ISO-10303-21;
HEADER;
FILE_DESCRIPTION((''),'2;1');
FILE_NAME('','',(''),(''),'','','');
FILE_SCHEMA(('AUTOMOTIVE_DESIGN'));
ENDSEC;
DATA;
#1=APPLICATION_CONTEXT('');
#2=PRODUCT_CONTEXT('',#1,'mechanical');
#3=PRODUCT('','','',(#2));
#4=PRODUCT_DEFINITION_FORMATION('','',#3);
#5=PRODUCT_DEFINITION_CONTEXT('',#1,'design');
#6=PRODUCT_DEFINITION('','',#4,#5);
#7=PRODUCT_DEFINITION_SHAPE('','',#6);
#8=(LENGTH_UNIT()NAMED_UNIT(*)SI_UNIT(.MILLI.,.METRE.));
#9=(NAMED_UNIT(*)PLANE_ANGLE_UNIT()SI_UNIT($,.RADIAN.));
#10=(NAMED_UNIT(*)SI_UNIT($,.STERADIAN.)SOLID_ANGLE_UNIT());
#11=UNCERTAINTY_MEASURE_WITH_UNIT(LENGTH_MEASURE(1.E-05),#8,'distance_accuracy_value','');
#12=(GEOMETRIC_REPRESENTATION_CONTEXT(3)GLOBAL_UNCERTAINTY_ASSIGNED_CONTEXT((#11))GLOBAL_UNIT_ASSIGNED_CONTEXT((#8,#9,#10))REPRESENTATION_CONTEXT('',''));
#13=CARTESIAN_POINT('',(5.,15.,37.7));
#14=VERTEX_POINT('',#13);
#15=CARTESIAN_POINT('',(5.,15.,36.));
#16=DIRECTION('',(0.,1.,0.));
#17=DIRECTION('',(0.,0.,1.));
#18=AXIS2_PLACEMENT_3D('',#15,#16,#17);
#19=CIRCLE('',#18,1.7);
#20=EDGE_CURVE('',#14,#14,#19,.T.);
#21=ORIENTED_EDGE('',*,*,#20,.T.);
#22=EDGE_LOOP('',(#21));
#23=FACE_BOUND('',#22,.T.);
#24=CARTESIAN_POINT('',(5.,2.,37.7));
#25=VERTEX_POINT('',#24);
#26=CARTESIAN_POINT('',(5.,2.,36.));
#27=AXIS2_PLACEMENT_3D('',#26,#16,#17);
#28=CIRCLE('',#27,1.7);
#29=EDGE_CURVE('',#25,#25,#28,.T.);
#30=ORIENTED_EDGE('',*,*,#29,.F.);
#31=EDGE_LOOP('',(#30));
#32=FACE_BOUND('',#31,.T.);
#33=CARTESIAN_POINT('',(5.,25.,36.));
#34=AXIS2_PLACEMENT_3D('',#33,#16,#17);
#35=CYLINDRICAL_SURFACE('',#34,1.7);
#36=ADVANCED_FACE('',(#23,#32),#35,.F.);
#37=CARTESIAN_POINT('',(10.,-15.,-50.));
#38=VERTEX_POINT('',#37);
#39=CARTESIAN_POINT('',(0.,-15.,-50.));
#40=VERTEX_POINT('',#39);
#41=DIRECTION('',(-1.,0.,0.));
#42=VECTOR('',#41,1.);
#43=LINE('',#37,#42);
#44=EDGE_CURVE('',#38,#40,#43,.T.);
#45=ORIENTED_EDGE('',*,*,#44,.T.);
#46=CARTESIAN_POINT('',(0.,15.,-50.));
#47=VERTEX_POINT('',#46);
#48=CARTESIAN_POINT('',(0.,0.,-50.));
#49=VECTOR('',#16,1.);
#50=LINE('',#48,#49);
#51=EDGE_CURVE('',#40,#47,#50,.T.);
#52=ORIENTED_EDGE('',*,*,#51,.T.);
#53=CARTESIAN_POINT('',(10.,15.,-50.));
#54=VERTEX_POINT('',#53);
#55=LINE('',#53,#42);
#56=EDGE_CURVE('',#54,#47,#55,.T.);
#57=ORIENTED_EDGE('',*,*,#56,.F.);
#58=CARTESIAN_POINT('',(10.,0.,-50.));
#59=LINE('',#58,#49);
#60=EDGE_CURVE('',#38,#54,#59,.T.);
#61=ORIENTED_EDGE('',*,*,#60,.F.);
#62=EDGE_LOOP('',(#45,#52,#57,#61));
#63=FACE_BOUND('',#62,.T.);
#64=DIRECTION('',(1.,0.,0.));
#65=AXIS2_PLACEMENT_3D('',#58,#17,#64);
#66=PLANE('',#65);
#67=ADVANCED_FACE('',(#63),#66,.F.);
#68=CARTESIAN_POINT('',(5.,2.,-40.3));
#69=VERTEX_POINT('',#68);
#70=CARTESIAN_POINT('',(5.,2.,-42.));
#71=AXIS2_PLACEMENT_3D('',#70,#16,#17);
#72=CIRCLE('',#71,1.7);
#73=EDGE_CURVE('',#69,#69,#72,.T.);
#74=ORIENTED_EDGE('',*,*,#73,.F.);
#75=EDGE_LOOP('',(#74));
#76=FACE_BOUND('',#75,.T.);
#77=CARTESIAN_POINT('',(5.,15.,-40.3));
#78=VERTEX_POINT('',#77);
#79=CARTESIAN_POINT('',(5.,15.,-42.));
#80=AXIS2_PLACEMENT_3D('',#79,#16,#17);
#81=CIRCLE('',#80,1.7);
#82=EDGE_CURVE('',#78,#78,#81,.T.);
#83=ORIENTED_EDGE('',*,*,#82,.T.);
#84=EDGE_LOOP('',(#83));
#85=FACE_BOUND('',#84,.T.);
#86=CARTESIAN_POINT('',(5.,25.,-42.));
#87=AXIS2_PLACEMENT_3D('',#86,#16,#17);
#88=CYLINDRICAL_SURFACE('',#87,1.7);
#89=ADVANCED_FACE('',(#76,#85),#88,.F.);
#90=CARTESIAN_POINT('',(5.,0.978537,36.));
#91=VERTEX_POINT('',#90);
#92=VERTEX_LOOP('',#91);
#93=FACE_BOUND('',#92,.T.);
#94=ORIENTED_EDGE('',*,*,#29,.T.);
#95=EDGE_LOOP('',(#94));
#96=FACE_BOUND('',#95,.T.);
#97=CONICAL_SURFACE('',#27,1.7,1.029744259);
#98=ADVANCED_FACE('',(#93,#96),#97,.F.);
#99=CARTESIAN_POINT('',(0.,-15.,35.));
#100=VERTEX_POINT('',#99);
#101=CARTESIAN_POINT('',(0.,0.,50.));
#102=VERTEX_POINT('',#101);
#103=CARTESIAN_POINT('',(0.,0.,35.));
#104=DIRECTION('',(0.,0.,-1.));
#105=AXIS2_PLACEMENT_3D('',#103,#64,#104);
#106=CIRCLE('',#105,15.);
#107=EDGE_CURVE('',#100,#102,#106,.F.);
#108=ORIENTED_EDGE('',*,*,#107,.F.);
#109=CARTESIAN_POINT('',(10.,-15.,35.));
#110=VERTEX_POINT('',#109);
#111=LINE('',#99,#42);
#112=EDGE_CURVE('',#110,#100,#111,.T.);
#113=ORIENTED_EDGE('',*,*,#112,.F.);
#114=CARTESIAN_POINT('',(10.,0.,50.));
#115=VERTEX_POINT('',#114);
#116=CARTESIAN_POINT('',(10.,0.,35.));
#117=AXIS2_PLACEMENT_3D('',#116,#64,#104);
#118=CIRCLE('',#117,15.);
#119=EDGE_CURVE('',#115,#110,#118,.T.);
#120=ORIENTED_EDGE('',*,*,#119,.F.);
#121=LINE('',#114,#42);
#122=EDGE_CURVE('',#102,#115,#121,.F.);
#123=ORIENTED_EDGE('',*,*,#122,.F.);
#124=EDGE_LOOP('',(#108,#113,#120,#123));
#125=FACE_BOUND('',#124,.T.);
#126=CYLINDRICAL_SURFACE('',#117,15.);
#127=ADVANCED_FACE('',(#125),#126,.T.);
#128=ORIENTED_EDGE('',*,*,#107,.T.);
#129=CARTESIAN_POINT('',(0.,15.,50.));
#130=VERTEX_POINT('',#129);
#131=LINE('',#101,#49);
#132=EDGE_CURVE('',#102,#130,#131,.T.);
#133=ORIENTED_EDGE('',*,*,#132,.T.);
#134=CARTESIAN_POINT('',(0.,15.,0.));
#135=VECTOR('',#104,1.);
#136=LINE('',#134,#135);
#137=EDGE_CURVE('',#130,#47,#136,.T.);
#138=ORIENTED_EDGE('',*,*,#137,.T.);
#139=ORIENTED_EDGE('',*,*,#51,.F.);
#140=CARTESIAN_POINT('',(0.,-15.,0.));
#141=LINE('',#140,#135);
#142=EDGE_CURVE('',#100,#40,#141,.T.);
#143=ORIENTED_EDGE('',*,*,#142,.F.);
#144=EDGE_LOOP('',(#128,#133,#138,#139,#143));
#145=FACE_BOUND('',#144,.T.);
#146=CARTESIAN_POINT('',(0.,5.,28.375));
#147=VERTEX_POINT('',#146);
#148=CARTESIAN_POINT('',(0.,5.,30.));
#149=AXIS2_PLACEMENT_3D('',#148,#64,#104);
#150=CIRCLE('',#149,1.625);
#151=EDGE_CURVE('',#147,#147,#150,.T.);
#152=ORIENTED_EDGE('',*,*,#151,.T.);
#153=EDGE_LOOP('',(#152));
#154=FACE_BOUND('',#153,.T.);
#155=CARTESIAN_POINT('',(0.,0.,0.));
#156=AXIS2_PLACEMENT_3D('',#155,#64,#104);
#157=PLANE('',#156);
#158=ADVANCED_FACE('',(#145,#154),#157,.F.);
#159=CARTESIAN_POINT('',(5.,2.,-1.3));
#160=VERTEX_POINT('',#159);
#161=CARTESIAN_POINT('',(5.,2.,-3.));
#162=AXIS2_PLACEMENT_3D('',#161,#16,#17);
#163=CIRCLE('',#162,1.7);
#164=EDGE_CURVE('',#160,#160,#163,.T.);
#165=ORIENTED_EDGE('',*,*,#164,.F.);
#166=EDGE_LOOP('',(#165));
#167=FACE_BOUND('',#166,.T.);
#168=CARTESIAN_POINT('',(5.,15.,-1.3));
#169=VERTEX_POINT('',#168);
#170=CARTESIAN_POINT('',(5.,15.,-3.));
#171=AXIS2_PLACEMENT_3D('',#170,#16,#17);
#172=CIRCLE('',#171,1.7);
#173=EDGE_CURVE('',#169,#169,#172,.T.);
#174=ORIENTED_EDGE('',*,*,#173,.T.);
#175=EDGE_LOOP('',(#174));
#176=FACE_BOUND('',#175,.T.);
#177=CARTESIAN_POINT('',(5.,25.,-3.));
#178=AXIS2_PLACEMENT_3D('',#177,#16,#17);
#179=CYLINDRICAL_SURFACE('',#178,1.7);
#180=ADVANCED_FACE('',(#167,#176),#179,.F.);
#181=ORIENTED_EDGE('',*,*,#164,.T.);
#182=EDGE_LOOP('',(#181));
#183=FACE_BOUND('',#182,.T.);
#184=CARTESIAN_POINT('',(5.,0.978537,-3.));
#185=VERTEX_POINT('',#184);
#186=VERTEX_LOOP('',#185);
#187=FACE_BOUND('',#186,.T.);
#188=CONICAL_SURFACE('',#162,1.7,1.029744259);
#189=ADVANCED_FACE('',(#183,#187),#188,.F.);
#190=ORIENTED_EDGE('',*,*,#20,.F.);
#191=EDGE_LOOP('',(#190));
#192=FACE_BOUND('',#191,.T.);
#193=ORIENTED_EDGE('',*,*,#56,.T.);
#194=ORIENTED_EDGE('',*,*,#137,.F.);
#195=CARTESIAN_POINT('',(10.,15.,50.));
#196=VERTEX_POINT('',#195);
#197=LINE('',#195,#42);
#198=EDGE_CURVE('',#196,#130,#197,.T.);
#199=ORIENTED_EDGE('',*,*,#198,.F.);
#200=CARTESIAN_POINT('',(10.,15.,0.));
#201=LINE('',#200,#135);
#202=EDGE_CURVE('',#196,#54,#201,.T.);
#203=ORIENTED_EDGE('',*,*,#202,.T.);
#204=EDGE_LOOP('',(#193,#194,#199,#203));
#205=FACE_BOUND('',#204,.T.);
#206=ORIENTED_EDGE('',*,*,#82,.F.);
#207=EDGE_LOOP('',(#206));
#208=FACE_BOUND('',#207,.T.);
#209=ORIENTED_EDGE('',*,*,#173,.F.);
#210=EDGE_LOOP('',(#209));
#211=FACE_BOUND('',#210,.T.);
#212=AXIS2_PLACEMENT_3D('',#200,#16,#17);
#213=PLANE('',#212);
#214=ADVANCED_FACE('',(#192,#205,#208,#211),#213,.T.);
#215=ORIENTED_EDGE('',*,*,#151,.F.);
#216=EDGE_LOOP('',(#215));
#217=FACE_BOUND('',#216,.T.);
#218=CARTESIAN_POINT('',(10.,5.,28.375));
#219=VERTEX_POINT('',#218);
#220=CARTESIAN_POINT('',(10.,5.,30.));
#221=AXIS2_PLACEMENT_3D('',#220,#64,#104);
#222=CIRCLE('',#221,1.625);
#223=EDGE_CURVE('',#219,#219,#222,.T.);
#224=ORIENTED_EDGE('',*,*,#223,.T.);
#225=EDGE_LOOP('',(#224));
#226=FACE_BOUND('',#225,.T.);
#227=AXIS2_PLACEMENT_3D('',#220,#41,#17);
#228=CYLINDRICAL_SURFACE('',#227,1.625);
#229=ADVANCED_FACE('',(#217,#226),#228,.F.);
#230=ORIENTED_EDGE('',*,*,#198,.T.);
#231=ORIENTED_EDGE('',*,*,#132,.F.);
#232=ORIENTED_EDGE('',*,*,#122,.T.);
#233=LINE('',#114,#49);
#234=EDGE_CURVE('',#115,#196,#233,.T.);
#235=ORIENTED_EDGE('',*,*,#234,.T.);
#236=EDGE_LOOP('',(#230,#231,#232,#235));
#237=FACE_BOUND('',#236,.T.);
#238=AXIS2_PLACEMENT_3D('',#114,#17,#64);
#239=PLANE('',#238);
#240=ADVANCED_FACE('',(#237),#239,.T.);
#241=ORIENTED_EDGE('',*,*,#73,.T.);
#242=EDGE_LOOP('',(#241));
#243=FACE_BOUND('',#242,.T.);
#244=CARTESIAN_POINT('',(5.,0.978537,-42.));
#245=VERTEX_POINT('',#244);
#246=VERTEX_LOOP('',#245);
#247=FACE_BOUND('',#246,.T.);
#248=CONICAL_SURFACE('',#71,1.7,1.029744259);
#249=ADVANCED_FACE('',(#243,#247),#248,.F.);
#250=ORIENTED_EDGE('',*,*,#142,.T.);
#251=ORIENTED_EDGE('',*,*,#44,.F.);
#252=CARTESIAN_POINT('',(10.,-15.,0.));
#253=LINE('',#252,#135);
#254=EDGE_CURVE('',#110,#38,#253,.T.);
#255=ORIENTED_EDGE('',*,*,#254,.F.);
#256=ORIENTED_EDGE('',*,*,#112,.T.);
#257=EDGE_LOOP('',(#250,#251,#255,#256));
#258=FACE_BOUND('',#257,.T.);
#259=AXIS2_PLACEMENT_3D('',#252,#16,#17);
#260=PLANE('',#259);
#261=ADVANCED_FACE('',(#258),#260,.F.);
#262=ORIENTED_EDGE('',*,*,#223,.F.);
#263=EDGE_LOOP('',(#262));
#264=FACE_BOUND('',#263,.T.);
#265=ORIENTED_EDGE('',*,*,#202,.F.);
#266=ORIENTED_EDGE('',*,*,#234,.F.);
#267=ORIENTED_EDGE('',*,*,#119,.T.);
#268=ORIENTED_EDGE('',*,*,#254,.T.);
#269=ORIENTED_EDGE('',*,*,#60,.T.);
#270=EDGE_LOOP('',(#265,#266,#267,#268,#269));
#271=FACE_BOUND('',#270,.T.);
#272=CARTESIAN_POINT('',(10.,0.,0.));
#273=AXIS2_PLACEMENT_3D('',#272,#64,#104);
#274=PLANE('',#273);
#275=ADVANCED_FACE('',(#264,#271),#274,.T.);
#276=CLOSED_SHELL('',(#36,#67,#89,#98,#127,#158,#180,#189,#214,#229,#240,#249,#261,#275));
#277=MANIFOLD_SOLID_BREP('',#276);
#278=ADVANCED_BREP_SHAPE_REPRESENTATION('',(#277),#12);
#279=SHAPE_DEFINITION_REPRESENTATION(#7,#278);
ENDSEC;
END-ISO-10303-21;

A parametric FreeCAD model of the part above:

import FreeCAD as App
import Part
import Sketcher
Q = App.Units.Quantity


def edges_at(feature, points):
    """Names of the edges that pass closest to the given points."""
    edges = feature.Shape.Edges
    near = lambda p: min(range(len(edges)), key=lambda i: edges[i].distToShape(Part.Vertex(*p))[0])
    return sorted({f"Edge{near(p) + 1}" for p in points})


def add_polygon(sketch, points):
    """Adds a closed chain of lines whose ends are joined by coincident constraints."""
    first, n = sketch.GeometryCount, len(points)
    for a, b in zip(points, points[1:] + points[:1]):
        sketch.addGeometry(Part.LineSegment(App.Vector(*a, 0), App.Vector(*b, 0)), False)
    for i in range(n):
        sketch.addConstraint(Sketcher.Constraint("Coincident", first + i, 2, first + (i + 1) % n, 1))

doc = App.newDocument("Part")
body = doc.addObject("PartDesign::Body", "Body")

sketch1 = body.newObject("Sketcher::SketchObject", "Sketch")
sketch1.AttachmentSupport = (doc.getObject("YZ_Plane"), [""])
sketch1.MapMode = "FlatFace"
add_polygon(sketch1, [(15, 50), (-15, 50), (-15, -50), (15, -50)])
sketch1.addGeometry(Part.Circle(App.Vector(5, 30, 0), App.Vector(0, 0, 1), 1.6), False)
sketch1.addConstraint([
    Sketcher.Constraint("Horizontal", 0),
    Sketcher.Constraint("Vertical", 1),
    Sketcher.Constraint("Horizontal", 2),
    Sketcher.Constraint("Vertical", 3),
    Sketcher.Constraint("Symmetric", 0, 2, 2, 2, -1, 1),
    Sketcher.Constraint("Diameter", 4, Q("3.25 mm")),
    Sketcher.Constraint("DistanceX", 0, 2, 0, 1, Q("30 mm")),
    Sketcher.Constraint("DistanceY", 1, 2, 1, 1, Q("100 mm")),
    Sketcher.Constraint("DistanceX", -1, 1, 4, 3, Q("5 mm")),
    Sketcher.Constraint("DistanceY", -1, 1, 4, 3, Q("30 mm")),
])
pad1 = body.newObject("PartDesign::Pad", "Pad")
pad1.Profile = sketch1
pad1.Length = 10
doc.recompute()

fillet = body.newObject("PartDesign::Fillet", "Fillet")
fillet.Base = (pad1, edges_at(pad1, [(5, -15, 50)]))
fillet.Radius = 15

sketch2 = body.newObject("Sketcher::SketchObject", "Sketch001")
sketch2.AttachmentSupport = (doc.getObject("XZ_Plane"), [""])
sketch2.MapMode = "FlatFace"
sketch2.AttachmentOffset = App.Placement(App.Vector(0, 0, -25), App.Rotation())
sketch2.addGeometry([
    Part.Circle(App.Vector(5, -42, 0), App.Vector(0, 0, 1), 1.7),
    Part.Circle(App.Vector(5, 36, 0), App.Vector(0, 0, 1), 1.7),
    Part.Circle(App.Vector(-105, -42, 0), App.Vector(0, 0, 1), 1.7),
    Part.Circle(App.Vector(-105, 42, 0), App.Vector(0, 0, 1), 1.7),
    Part.Circle(App.Vector(-105, 0, 0), App.Vector(0, 0, 1), 1.7),
    Part.Circle(App.Vector(5, -3, 0), App.Vector(0, 0, 1), 1.7),
], False)
sketch2.addConstraint([
    Sketcher.Constraint("Equal", 0, 1),
    Sketcher.Constraint("Equal", 1, 2),
    Sketcher.Constraint("Equal", 2, 3),
    Sketcher.Constraint("Equal", 3, 4),
    Sketcher.Constraint("Equal", 4, 5),
    Sketcher.Constraint("Symmetric", 2, 3, 3, 3, -1),
    Sketcher.Constraint("PointOnObject", 4, 3, -1),
    Sketcher.Constraint("Horizontal", 0, 3, 2, 3),
    Sketcher.Constraint("Vertical", 0, 3, 1, 3),
    Sketcher.Constraint("Vertical", 3, 3, 4, 3),
    Sketcher.Constraint("Vertical", 1, 3, 5, 3),
    Sketcher.Constraint("Diameter", 0, Q("3.4 mm")),
    Sketcher.Constraint("DistanceX", -1, 1, 0, 3, Q("5 mm")),
    Sketcher.Constraint("DistanceY", 0, 3, -1, 1, Q("42 mm")),
    Sketcher.Constraint("DistanceY", -1, 1, 1, 3, Q("36 mm")),
    Sketcher.Constraint("DistanceX", 2, 3, -1, 1, Q("105 mm")),
    Sketcher.Constraint("DistanceY", 5, 3, -1, 1, Q("3 mm")),
])
doc.recompute()
hole = body.newObject("PartDesign::Hole", "Hole")
hole.Profile = sketch2
hole.ThreadType = "None"
hole.Diameter = 3.4
hole.DepthType = "Dimension"
hole.Depth = 23
hole.DrillPoint = "Angled"
hole.DrillPointAngle = 118
hole.HoleCutType = "Counterbore"
hole.HoleCutDiameter = 6.5
hole.HoleCutDepth = 3
hole.Reversed = True

doc.recompute()
